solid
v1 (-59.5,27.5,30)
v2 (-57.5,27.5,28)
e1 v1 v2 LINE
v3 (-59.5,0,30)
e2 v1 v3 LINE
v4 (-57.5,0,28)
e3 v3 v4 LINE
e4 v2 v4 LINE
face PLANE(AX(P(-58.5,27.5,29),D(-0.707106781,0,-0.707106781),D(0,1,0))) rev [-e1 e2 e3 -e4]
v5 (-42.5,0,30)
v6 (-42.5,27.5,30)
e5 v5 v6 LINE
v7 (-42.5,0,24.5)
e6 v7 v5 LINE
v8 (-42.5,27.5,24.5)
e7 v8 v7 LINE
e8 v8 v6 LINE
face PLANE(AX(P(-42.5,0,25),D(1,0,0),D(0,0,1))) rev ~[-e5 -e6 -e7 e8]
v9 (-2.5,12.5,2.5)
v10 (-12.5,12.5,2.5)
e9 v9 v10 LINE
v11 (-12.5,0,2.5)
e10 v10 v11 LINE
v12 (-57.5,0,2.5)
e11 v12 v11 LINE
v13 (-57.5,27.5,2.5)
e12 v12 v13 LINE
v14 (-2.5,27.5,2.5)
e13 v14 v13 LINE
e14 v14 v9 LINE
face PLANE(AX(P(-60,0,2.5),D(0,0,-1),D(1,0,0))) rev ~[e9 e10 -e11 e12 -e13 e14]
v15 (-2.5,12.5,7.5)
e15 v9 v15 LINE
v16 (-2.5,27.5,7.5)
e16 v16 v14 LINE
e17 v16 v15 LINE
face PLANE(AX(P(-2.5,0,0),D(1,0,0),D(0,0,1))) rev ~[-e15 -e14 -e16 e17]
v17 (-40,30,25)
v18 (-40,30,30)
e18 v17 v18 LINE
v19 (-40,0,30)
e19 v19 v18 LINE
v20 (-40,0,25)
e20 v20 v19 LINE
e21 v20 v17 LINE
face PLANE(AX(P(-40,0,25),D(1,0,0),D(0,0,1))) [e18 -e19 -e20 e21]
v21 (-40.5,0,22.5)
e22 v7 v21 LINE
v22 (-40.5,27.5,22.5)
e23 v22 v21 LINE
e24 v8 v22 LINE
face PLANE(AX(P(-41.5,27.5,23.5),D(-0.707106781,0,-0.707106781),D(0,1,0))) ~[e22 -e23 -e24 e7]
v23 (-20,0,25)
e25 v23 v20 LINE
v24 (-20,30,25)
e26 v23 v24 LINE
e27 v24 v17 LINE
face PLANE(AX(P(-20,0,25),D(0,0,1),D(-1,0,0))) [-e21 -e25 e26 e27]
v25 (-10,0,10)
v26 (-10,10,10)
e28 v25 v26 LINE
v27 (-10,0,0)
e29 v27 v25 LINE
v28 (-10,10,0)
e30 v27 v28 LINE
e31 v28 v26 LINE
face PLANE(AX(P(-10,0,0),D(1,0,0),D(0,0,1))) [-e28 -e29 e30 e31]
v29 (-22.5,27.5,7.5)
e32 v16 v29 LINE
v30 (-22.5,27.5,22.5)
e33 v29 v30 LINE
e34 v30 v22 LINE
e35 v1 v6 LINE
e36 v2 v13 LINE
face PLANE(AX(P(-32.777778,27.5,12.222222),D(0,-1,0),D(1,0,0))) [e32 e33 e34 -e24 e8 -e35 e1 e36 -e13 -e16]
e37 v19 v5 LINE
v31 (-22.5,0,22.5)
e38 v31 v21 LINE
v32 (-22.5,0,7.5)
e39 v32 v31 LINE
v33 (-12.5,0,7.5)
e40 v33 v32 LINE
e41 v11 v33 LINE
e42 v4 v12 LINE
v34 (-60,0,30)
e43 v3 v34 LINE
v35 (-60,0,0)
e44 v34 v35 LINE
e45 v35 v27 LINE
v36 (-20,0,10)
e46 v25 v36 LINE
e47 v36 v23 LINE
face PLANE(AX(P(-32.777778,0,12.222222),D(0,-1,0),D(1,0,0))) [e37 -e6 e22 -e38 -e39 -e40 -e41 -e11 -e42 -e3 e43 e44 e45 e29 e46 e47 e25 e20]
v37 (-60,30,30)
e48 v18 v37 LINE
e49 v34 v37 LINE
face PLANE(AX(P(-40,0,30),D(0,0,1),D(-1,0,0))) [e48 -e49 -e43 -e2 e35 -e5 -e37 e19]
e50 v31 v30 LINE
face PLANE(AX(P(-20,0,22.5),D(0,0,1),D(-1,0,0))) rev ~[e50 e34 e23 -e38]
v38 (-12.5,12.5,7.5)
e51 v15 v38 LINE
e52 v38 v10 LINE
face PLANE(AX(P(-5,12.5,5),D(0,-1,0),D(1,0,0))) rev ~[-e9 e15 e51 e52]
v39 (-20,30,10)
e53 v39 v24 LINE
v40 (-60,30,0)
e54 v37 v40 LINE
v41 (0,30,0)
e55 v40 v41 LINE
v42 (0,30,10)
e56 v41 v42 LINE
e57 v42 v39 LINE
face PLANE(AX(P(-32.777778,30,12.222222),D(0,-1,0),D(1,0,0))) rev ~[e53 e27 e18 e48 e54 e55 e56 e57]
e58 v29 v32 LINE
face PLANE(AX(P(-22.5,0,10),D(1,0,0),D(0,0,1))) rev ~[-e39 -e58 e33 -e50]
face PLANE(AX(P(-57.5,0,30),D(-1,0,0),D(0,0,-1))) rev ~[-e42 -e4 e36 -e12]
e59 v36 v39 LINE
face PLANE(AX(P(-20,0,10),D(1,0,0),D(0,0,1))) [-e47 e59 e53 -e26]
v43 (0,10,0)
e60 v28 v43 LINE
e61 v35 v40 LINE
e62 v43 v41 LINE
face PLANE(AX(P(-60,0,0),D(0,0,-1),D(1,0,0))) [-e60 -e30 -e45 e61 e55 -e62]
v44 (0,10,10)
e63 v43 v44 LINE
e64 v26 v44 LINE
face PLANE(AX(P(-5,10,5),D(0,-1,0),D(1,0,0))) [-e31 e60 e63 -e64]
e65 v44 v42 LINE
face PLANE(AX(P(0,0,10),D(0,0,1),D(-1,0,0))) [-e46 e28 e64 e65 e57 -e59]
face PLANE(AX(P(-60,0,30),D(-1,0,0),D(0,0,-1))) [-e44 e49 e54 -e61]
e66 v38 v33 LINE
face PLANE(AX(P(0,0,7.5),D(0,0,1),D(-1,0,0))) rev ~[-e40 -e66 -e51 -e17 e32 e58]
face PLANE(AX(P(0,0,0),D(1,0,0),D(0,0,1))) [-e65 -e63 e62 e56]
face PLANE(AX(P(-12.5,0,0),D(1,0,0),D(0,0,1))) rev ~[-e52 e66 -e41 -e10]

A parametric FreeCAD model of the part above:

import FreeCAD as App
import Part
import Sketcher
from FreeCAD import Vector


def edges_at(feature, points):
    """Names of the edges that pass closest to the given points."""
    edges = feature.Shape.Edges
    near = lambda p: min(range(len(edges)), key=lambda i: edges[i].distToShape(Part.Vertex(*p))[0])
    return sorted({f"Edge{near(p) + 1}" for p in points})


def faces_at(feature, points):
    """Names of the faces that lie closest to the given points."""
    faces = feature.Shape.Faces
    near = lambda p: min(range(len(faces)), key=lambda i: faces[i].distToShape(Part.Vertex(*p))[0])
    return sorted({f"Face{near(p) + 1}" for p in points})


def add_polygon(sketch, points):
    """Adds a closed chain of lines whose ends are joined by coincident constraints."""
    first, n = sketch.GeometryCount, len(points)
    for a, b in zip(points, points[1:] + points[:1]):
        sketch.addGeometry(Part.LineSegment(App.Vector(*a, 0), App.Vector(*b, 0)), False)
    for i in range(n):
        sketch.addConstraint(Sketcher.Constraint("Coincident", first + i, 2, first + (i + 1) % n, 1))

doc = App.newDocument("Part")
body = doc.addObject("PartDesign::Body", "Body")

# Sketch on XZ plane
sketch1 = doc.addObject("Sketcher::SketchObject", "Sketch")
body.addObject(sketch1)
sketch1.AttachmentSupport = (doc.XZ_Plane, [""])
sketch1.MapMode = "FlatFace"
add_polygon(sketch1, [(-60, 0), (0, 0), (0, 10), (-20, 10), (-20, 25), (-40, 25), (-40, 30), (-60, 30)])  # lines 0-7
sketch1.addConstraint([
    Sketcher.Constraint("Horizontal", 0),
    Sketcher.Constraint("Vertical", 1),
    Sketcher.Constraint("Horizontal", 2),
    Sketcher.Constraint("Vertical", 3),
    Sketcher.Constraint("Horizontal", 4),
    Sketcher.Constraint("Vertical", 5),
    Sketcher.Constraint("Horizontal", 6),
    Sketcher.Constraint("Vertical", 7),
    Sketcher.Constraint("Coincident", 0, 2, -1, 1),
    Sketcher.Constraint("Equal", 2, 4),
    Sketcher.Constraint("Equal", 4, 6),
    Sketcher.Constraint("DistanceX", 0, 1, 0, 2, 60.0),
    Sketcher.Constraint("DistanceY", 1, 1, 1, 2, 10.0),
    Sketcher.Constraint("DistanceY", 3, 1, 3, 2, 15.0),
    Sketcher.Constraint("DistanceY", 5, 1, 5, 2, 5.0),
])
pad1 = doc.addObject("PartDesign::Pad", "Pad")
body.addObject(pad1)
pad1.Profile = sketch1
pad1.Length = 30
pad1.Reversed = True

# Sketch on XZ plane
sketch2 = doc.addObject("Sketcher::SketchObject", "Sketch001")
body.addObject(sketch2)
sketch2.AttachmentSupport = (doc.XZ_Plane, [""])
sketch2.MapMode = "FlatFace"
add_polygon(sketch2, [(-10, 10), (-10, 0), (0, 0), (0, 10)])  # lines 0-3
sketch2.addConstraint([
    Sketcher.Constraint("Vertical", 0),
    Sketcher.Constraint("Horizontal", 1),
    Sketcher.Constraint("Vertical", 2),
    Sketcher.Constraint("Horizontal", 3),
    Sketcher.Constraint("Coincident", 1, 2, -1, 1),
    Sketcher.Constraint("Equal", 3, 0),
    Sketcher.Constraint("DistanceX", 1, 1, 1, 2, 10.0),
])
pocket1 = doc.addObject("PartDesign::Pocket", "Pocket")
body.addObject(pocket1)
pocket1.Profile = sketch2
pocket1.Length = 10
doc.recompute()

thickness = doc.addObject("PartDesign::Thickness", "Thickness")
body.addObject(thickness)
thickness.Base = (pocket1, faces_at(pocket1, [(-50, 15, 30), (-35, 0, 15)]))
thickness.Value = 2.5
thickness.Reversed = True
thickness.Join = "Intersection"
doc.recompute()

chamfer = doc.addObject("PartDesign::Chamfer", "Chamfer")
body.addObject(chamfer)
chamfer.Base = (thickness, edges_at(thickness, [(-57.5, 13.75, 30)]))
chamfer.Size = 2
doc.recompute()

chamfer2 = doc.addObject("PartDesign::Chamfer", "Chamfer001")
body.addObject(chamfer2)
chamfer2.Base = (chamfer, edges_at(chamfer, [(-42.5, 13.75, 22.5)]))
chamfer2.Size = 2

doc.recompute()
